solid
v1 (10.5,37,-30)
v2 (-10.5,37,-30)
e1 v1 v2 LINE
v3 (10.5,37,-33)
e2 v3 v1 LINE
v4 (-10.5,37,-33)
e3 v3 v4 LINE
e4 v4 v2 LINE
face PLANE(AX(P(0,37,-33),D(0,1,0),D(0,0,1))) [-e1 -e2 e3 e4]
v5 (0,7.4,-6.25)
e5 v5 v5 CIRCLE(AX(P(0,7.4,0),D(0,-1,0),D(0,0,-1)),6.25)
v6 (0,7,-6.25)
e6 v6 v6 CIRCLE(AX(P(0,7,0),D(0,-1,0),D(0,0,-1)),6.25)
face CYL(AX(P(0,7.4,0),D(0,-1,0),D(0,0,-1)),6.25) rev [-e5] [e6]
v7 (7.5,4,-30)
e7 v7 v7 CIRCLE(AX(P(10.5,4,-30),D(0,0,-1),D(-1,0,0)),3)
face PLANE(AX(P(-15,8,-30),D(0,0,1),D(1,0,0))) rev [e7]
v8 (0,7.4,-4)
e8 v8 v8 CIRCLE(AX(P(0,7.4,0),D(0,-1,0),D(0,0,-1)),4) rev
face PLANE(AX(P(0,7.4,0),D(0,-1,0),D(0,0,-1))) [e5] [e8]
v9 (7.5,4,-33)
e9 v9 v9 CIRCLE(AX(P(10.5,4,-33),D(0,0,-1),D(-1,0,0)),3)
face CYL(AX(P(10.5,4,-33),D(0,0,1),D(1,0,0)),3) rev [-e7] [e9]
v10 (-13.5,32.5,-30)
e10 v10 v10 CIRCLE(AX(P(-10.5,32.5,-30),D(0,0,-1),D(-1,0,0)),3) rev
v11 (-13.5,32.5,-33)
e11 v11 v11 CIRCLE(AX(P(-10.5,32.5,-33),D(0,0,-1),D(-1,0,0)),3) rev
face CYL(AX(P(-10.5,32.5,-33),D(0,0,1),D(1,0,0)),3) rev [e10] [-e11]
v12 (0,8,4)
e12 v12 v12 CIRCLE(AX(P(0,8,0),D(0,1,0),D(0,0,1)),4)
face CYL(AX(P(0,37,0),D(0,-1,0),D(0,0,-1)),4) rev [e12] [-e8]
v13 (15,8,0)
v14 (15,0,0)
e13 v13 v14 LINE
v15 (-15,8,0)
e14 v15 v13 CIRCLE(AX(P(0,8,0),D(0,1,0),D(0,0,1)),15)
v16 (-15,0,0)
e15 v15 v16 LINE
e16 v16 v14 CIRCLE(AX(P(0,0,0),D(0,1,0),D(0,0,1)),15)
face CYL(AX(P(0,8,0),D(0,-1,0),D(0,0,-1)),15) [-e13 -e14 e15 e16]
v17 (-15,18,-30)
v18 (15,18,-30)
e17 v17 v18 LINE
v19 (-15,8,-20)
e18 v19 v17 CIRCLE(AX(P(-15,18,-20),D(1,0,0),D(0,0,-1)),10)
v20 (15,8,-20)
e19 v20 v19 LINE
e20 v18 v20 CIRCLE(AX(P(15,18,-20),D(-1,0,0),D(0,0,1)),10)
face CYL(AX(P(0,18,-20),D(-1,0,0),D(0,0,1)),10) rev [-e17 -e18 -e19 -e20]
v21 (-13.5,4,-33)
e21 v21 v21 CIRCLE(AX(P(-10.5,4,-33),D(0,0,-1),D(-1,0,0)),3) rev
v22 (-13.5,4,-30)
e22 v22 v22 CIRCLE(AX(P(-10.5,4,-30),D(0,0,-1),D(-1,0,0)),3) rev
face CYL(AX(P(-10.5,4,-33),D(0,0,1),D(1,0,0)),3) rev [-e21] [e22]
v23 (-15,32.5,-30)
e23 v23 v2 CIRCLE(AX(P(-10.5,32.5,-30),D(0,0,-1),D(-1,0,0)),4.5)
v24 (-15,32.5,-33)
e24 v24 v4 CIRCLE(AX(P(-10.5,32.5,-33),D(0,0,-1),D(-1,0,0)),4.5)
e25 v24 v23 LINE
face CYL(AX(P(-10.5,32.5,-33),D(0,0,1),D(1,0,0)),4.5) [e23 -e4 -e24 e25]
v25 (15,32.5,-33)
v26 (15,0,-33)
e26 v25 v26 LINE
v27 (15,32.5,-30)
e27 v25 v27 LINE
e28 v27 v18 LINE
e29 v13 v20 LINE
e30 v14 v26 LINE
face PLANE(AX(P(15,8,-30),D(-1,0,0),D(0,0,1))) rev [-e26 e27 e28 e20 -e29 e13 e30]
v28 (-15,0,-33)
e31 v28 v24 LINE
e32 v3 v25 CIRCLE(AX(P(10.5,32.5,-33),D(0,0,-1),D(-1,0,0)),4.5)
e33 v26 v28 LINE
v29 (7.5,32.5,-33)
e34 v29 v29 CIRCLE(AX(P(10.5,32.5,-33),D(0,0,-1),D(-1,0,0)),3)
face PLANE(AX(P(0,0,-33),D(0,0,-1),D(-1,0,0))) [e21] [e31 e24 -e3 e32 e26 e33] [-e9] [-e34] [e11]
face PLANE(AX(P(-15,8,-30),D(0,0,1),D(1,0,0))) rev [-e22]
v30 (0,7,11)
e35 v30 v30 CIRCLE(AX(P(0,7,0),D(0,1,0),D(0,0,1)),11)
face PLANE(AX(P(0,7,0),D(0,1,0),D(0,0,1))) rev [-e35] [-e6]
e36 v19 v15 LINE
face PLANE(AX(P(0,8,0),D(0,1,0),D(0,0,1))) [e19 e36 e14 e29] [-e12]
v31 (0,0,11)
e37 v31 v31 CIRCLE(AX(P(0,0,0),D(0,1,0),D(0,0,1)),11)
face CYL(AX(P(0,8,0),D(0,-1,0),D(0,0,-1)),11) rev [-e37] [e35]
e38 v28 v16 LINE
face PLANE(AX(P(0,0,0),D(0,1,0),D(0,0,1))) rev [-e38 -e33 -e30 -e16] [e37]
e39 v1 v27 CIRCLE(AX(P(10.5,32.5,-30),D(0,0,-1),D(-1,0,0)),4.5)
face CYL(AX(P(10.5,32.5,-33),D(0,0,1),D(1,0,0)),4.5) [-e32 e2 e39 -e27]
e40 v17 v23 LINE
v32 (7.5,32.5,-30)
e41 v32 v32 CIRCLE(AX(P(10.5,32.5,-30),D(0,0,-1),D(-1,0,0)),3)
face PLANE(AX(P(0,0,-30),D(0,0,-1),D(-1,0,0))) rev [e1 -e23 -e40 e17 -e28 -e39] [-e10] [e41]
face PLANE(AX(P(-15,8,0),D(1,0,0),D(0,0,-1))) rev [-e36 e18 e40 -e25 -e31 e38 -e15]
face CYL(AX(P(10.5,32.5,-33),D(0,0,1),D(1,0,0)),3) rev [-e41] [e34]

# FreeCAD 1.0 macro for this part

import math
import FreeCAD as App
import Part
import Sketcher
from FreeCAD import Vector
Q = App.Units.Quantity


def edges_at(feature, points):
    """Names of the edges that pass closest to the given points."""
    edges = feature.Shape.Edges
    near = lambda p: min(range(len(edges)), key=lambda i: edges[i].distToShape(Part.Vertex(*p))[0])
    return sorted({f"Edge{near(p) + 1}" for p in points})

doc = App.newDocument("Part")
params = doc.addObject("Spreadsheet::Sheet", "Params")
for row, (alias, value) in enumerate([
    ("sketch1_diameter", "22 mm"),
    ("sketch1_radius", "15 mm"),
    ("pad1_length", "8 mm"),
    ("sketch2_diameter", "6 mm"),
    ("sketch2_radius", "4.5 mm"),
    ("sketch2_width", "30 mm"),
    ("sketch2_height", "32.5 mm"),
    ("pad2_length", "3 mm"),
    ("fillet_radius", "10 mm"),
    ("sketch3_diameter", "22 mm"),
    ("pad3_length", "1 mm"),
    ("sketch4_diameter", "8 mm"),
    ("sketch5_diameter", "12.5 mm"),
    ("pocket2_length", "0.4 mm"),
], start=1):
    params.set(f"A{row}", alias)
    params.set(f"B{row}", "=" + value)
    params.setAlias(f"B{row}", alias)

body = doc.addObject("PartDesign::Body", "Body")

# Sketch on XZ plane
sketch1 = body.newObject("Sketcher::SketchObject", "Sketch")
sketch1.AttachmentSupport = (doc.getObject("XZ_Plane"), [""])
sketch1.MapMode = "FlatFace"
sketch1.addGeometry(Part.LineSegment(Vector(-15, -30, 0), Vector(-15, 0, 0)), False)
sketch1.addGeometry(Part.ArcOfCircle(Part.Circle(Vector(0, 0, 0), Vector(0, 0, 1), 15), math.radians(0), math.radians(180)), False)
sketch1.addGeometry(Part.LineSegment(Vector(15, 0, 0), Vector(15, -30, 0)), False)
sketch1.addGeometry(Part.LineSegment(Vector(15, -30, 0), Vector(-15, -30, 0)), False)
sketch1.addGeometry(Part.Circle(Vector(0, 0, 0), Vector(0, 0, 1), 11), False)
sketch1.addConstraint(Sketcher.Constraint("Tangent", 0, 2, 1, 2))
sketch1.addConstraint(Sketcher.Constraint("Tangent", 1, 1, 2, 1))
sketch1.addConstraint(Sketcher.Constraint("Coincident", 2, 2, 3, 1))
sketch1.addConstraint(Sketcher.Constraint("Coincident", 3, 2, 0, 1))
sketch1.addConstraint(Sketcher.Constraint("Vertical", 0))
sketch1.addConstraint(Sketcher.Constraint("Vertical", 2))
sketch1.addConstraint(Sketcher.Constraint("Horizontal", 3))
sketch1.addConstraint(Sketcher.Constraint("Coincident", 1, 3, -1, 1))
sketch1.addConstraint(Sketcher.Constraint("Coincident", 4, 3, -1, 1))
sketch1.addConstraint(Sketcher.Constraint("Equal", 3, 0))
sketch1.addConstraint(Sketcher.Constraint("Diameter", 4, Q("22 mm")))
sketch1.addConstraint(Sketcher.Constraint("Radius", 1, Q("15 mm")))
sketch1.setExpression("Constraints[10]", "Params.sketch1_diameter")
sketch1.setExpression("Constraints[11]", "Params.sketch1_radius")
pad1 = body.newObject("PartDesign::Pad", "Pad")
pad1.Profile = sketch1
pad1.setExpression("Length", "Params.pad1_length")
pad1.Reversed = True

# Sketch on XY plane
sketch2 = body.newObject("Sketcher::SketchObject", "Sketch001")
sketch2.AttachmentSupport = (doc.getObject("XY_Plane"), [""])
sketch2.MapMode = "FlatFace"
sketch2.AttachmentOffset = App.Placement(Vector(0, 0, -30), App.Rotation())
sketch2.addGeometry(Part.LineSegment(Vector(15, 0, 0), Vector(-15, 0, 0)), False)
sketch2.addGeometry(Part.LineSegment(Vector(-15, 0, 0), Vector(-15, 32.5, 0)), False)
sketch2.addGeometry(Part.ArcOfCircle(Part.Circle(Vector(-10.5, 32.5, 0), Vector(0, 0, 1), 4.5), math.radians(90), math.radians(180)), False)
sketch2.addGeometry(Part.LineSegment(Vector(-10.5, 37, 0), Vector(10.5, 37, 0)), False)
sketch2.addGeometry(Part.ArcOfCircle(Part.Circle(Vector(10.5, 32.5, 0), Vector(0, 0, 1), 4.5), math.radians(0), math.radians(90)), False)
sketch2.addGeometry(Part.LineSegment(Vector(15, 32.5, 0), Vector(15, 0, 0)), False)
sketch2.addGeometry(Part.Circle(Vector(10.5, 4, 0), Vector(0, 0, 1), 3), False)
sketch2.addGeometry(Part.Circle(Vector(-10.5, 4, 0), Vector(0, 0, 1), 3), False)
sketch2.addGeometry(Part.Circle(Vector(10.5, 32.5, 0), Vector(0, 0, 1), 3), False)
sketch2.addGeometry(Part.Circle(Vector(-10.5, 32.5, 0), Vector(0, 0, 1), 3), False)
sketch2.addConstraint(Sketcher.Constraint("Coincident", 0, 2, 1, 1))
sketch2.addConstraint(Sketcher.Constraint("Tangent", 1, 2, 2, 2))
sketch2.addConstraint(Sketcher.Constraint("Tangent", 2, 1, 3, 1))
sketch2.addConstraint(Sketcher.Constraint("Tangent", 3, 2, 4, 2))
sketch2.addConstraint(Sketcher.Constraint("Tangent", 4, 1, 5, 1))
sketch2.addConstraint(Sketcher.Constraint("Coincident", 5, 2, 0, 1))
sketch2.addConstraint(Sketcher.Constraint("Horizontal", 0))
sketch2.addConstraint(Sketcher.Constraint("Vertical", 1))
sketch2.addConstraint(Sketcher.Constraint("Horizontal", 3))
sketch2.addConstraint(Sketcher.Constraint("Vertical", 5))
sketch2.addConstraint(Sketcher.Constraint("Coincident", 8, 3, 4, 3))
sketch2.addConstraint(Sketcher.Constraint("Coincident", 9, 3, 2, 3))
sketch2.addConstraint(Sketcher.Constraint("Equal", 2, 4))
sketch2.addConstraint(Sketcher.Constraint("Equal", 6, 7))
sketch2.addConstraint(Sketcher.Constraint("Equal", 7, 8))
sketch2.addConstraint(Sketcher.Constraint("Equal", 8, 9))
sketch2.addConstraint(Sketcher.Constraint("Symmetric", 0, 2, 5, 2, -1, 1))
sketch2.addConstraint(Sketcher.Constraint("Symmetric", 6, 3, 7, 3, -2))
sketch2.addConstraint(Sketcher.Constraint("Vertical", 4, 3, 6, 3))
sketch2.addConstraint(Sketcher.Constraint("Diameter", 6, Q("6 mm")))
sketch2.addConstraint(Sketcher.Constraint("Radius", 2, Q("4.5 mm")))
sketch2.addConstraint(Sketcher.Constraint("DistanceX", 0, 2, 0, 1, Q("30 mm")))
sketch2.addConstraint(Sketcher.Constraint("DistanceY", 1, 1, 1, 2, Q("32.5 mm")))
sketch2.addConstraint(Sketcher.Constraint("DistanceY", -1, 1, 6, 3, Q("4 mm")))
sketch2.setExpression("Constraints[19]", "Params.sketch2_diameter")
sketch2.setExpression("Constraints[20]", "Params.sketch2_radius")
sketch2.setExpression("Constraints[21]", "Params.sketch2_width")
sketch2.setExpression("Constraints[22]", "Params.sketch2_height")
pad2 = body.newObject("PartDesign::Pad", "Pad001")
pad2.Profile = sketch2
pad2.setExpression("Length", "Params.pad2_length")
pad2.Reversed = True
doc.recompute()

fillet = body.newObject("PartDesign::Fillet", "Fillet")
fillet.Base = (pad2, edges_at(pad2, [(0, 8, -30)]))
fillet.setExpression("Radius", "Params.fillet_radius")

# Sketch on XZ plane
sketch3 = body.newObject("Sketcher::SketchObject", "Sketch002")
sketch3.AttachmentSupport = (doc.getObject("XZ_Plane"), [""])
sketch3.MapMode = "FlatFace"
sketch3.AttachmentOffset = App.Placement(Vector(0, 0, -8), App.Rotation())
sketch3.addGeometry(Part.Circle(Vector(0, 0, 0), Vector(0, 0, 1), 11), False)
sketch3.addConstraint(Sketcher.Constraint("Coincident", 0, 3, -1, 1))
sketch3.addConstraint(Sketcher.Constraint("Diameter", 0, Q("22 mm")))
sketch3.setExpression("Constraints[1]", "Params.sketch3_diameter")
pad3 = body.newObject("PartDesign::Pad", "Pad002")
pad3.Profile = sketch3
pad3.setExpression("Length", "Params.pad3_length")

# Sketch on XZ plane
sketch4 = body.newObject("Sketcher::SketchObject", "Sketch003")
sketch4.AttachmentSupport = (doc.getObject("XZ_Plane"), [""])
sketch4.MapMode = "FlatFace"
sketch4.AttachmentOffset = App.Placement(Vector(0, 0, -7), App.Rotation())
sketch4.addGeometry(Part.Circle(Vector(0, 0, 0), Vector(0, 0, 1), 4), False)
sketch4.addConstraint(Sketcher.Constraint("Coincident", 0, 3, -1, 1))
sketch4.addConstraint(Sketcher.Constraint("Diameter", 0, Q("8 mm")))
sketch4.setExpression("Constraints[1]", "Params.sketch4_diameter")
pocket1 = body.newObject("PartDesign::Pocket", "Pocket")
pocket1.Profile = sketch4
pocket1.Type = "ThroughAll"

# Sketch on XZ plane
sketch5 = body.newObject("Sketcher::SketchObject", "Sketch004")
sketch5.AttachmentSupport = (doc.getObject("XZ_Plane"), [""])
sketch5.MapMode = "FlatFace"
sketch5.AttachmentOffset = App.Placement(Vector(0, 0, -7), App.Rotation())
sketch5.addGeometry(Part.Circle(Vector(0, 0, 0), Vector(0, 0, 1), 6), False)
sketch5.addConstraint(Sketcher.Constraint("Coincident", 0, 3, -1, 1))
sketch5.addConstraint(Sketcher.Constraint("Diameter", 0, Q("12.5 mm")))
sketch5.setExpression("Constraints[1]", "Params.sketch5_diameter")
pocket2 = body.newObject("PartDesign::Pocket", "Pocket001")
pocket2.Profile = sketch5
pocket2.setExpression("Length", "Params.pocket2_length")

doc.recompute()
